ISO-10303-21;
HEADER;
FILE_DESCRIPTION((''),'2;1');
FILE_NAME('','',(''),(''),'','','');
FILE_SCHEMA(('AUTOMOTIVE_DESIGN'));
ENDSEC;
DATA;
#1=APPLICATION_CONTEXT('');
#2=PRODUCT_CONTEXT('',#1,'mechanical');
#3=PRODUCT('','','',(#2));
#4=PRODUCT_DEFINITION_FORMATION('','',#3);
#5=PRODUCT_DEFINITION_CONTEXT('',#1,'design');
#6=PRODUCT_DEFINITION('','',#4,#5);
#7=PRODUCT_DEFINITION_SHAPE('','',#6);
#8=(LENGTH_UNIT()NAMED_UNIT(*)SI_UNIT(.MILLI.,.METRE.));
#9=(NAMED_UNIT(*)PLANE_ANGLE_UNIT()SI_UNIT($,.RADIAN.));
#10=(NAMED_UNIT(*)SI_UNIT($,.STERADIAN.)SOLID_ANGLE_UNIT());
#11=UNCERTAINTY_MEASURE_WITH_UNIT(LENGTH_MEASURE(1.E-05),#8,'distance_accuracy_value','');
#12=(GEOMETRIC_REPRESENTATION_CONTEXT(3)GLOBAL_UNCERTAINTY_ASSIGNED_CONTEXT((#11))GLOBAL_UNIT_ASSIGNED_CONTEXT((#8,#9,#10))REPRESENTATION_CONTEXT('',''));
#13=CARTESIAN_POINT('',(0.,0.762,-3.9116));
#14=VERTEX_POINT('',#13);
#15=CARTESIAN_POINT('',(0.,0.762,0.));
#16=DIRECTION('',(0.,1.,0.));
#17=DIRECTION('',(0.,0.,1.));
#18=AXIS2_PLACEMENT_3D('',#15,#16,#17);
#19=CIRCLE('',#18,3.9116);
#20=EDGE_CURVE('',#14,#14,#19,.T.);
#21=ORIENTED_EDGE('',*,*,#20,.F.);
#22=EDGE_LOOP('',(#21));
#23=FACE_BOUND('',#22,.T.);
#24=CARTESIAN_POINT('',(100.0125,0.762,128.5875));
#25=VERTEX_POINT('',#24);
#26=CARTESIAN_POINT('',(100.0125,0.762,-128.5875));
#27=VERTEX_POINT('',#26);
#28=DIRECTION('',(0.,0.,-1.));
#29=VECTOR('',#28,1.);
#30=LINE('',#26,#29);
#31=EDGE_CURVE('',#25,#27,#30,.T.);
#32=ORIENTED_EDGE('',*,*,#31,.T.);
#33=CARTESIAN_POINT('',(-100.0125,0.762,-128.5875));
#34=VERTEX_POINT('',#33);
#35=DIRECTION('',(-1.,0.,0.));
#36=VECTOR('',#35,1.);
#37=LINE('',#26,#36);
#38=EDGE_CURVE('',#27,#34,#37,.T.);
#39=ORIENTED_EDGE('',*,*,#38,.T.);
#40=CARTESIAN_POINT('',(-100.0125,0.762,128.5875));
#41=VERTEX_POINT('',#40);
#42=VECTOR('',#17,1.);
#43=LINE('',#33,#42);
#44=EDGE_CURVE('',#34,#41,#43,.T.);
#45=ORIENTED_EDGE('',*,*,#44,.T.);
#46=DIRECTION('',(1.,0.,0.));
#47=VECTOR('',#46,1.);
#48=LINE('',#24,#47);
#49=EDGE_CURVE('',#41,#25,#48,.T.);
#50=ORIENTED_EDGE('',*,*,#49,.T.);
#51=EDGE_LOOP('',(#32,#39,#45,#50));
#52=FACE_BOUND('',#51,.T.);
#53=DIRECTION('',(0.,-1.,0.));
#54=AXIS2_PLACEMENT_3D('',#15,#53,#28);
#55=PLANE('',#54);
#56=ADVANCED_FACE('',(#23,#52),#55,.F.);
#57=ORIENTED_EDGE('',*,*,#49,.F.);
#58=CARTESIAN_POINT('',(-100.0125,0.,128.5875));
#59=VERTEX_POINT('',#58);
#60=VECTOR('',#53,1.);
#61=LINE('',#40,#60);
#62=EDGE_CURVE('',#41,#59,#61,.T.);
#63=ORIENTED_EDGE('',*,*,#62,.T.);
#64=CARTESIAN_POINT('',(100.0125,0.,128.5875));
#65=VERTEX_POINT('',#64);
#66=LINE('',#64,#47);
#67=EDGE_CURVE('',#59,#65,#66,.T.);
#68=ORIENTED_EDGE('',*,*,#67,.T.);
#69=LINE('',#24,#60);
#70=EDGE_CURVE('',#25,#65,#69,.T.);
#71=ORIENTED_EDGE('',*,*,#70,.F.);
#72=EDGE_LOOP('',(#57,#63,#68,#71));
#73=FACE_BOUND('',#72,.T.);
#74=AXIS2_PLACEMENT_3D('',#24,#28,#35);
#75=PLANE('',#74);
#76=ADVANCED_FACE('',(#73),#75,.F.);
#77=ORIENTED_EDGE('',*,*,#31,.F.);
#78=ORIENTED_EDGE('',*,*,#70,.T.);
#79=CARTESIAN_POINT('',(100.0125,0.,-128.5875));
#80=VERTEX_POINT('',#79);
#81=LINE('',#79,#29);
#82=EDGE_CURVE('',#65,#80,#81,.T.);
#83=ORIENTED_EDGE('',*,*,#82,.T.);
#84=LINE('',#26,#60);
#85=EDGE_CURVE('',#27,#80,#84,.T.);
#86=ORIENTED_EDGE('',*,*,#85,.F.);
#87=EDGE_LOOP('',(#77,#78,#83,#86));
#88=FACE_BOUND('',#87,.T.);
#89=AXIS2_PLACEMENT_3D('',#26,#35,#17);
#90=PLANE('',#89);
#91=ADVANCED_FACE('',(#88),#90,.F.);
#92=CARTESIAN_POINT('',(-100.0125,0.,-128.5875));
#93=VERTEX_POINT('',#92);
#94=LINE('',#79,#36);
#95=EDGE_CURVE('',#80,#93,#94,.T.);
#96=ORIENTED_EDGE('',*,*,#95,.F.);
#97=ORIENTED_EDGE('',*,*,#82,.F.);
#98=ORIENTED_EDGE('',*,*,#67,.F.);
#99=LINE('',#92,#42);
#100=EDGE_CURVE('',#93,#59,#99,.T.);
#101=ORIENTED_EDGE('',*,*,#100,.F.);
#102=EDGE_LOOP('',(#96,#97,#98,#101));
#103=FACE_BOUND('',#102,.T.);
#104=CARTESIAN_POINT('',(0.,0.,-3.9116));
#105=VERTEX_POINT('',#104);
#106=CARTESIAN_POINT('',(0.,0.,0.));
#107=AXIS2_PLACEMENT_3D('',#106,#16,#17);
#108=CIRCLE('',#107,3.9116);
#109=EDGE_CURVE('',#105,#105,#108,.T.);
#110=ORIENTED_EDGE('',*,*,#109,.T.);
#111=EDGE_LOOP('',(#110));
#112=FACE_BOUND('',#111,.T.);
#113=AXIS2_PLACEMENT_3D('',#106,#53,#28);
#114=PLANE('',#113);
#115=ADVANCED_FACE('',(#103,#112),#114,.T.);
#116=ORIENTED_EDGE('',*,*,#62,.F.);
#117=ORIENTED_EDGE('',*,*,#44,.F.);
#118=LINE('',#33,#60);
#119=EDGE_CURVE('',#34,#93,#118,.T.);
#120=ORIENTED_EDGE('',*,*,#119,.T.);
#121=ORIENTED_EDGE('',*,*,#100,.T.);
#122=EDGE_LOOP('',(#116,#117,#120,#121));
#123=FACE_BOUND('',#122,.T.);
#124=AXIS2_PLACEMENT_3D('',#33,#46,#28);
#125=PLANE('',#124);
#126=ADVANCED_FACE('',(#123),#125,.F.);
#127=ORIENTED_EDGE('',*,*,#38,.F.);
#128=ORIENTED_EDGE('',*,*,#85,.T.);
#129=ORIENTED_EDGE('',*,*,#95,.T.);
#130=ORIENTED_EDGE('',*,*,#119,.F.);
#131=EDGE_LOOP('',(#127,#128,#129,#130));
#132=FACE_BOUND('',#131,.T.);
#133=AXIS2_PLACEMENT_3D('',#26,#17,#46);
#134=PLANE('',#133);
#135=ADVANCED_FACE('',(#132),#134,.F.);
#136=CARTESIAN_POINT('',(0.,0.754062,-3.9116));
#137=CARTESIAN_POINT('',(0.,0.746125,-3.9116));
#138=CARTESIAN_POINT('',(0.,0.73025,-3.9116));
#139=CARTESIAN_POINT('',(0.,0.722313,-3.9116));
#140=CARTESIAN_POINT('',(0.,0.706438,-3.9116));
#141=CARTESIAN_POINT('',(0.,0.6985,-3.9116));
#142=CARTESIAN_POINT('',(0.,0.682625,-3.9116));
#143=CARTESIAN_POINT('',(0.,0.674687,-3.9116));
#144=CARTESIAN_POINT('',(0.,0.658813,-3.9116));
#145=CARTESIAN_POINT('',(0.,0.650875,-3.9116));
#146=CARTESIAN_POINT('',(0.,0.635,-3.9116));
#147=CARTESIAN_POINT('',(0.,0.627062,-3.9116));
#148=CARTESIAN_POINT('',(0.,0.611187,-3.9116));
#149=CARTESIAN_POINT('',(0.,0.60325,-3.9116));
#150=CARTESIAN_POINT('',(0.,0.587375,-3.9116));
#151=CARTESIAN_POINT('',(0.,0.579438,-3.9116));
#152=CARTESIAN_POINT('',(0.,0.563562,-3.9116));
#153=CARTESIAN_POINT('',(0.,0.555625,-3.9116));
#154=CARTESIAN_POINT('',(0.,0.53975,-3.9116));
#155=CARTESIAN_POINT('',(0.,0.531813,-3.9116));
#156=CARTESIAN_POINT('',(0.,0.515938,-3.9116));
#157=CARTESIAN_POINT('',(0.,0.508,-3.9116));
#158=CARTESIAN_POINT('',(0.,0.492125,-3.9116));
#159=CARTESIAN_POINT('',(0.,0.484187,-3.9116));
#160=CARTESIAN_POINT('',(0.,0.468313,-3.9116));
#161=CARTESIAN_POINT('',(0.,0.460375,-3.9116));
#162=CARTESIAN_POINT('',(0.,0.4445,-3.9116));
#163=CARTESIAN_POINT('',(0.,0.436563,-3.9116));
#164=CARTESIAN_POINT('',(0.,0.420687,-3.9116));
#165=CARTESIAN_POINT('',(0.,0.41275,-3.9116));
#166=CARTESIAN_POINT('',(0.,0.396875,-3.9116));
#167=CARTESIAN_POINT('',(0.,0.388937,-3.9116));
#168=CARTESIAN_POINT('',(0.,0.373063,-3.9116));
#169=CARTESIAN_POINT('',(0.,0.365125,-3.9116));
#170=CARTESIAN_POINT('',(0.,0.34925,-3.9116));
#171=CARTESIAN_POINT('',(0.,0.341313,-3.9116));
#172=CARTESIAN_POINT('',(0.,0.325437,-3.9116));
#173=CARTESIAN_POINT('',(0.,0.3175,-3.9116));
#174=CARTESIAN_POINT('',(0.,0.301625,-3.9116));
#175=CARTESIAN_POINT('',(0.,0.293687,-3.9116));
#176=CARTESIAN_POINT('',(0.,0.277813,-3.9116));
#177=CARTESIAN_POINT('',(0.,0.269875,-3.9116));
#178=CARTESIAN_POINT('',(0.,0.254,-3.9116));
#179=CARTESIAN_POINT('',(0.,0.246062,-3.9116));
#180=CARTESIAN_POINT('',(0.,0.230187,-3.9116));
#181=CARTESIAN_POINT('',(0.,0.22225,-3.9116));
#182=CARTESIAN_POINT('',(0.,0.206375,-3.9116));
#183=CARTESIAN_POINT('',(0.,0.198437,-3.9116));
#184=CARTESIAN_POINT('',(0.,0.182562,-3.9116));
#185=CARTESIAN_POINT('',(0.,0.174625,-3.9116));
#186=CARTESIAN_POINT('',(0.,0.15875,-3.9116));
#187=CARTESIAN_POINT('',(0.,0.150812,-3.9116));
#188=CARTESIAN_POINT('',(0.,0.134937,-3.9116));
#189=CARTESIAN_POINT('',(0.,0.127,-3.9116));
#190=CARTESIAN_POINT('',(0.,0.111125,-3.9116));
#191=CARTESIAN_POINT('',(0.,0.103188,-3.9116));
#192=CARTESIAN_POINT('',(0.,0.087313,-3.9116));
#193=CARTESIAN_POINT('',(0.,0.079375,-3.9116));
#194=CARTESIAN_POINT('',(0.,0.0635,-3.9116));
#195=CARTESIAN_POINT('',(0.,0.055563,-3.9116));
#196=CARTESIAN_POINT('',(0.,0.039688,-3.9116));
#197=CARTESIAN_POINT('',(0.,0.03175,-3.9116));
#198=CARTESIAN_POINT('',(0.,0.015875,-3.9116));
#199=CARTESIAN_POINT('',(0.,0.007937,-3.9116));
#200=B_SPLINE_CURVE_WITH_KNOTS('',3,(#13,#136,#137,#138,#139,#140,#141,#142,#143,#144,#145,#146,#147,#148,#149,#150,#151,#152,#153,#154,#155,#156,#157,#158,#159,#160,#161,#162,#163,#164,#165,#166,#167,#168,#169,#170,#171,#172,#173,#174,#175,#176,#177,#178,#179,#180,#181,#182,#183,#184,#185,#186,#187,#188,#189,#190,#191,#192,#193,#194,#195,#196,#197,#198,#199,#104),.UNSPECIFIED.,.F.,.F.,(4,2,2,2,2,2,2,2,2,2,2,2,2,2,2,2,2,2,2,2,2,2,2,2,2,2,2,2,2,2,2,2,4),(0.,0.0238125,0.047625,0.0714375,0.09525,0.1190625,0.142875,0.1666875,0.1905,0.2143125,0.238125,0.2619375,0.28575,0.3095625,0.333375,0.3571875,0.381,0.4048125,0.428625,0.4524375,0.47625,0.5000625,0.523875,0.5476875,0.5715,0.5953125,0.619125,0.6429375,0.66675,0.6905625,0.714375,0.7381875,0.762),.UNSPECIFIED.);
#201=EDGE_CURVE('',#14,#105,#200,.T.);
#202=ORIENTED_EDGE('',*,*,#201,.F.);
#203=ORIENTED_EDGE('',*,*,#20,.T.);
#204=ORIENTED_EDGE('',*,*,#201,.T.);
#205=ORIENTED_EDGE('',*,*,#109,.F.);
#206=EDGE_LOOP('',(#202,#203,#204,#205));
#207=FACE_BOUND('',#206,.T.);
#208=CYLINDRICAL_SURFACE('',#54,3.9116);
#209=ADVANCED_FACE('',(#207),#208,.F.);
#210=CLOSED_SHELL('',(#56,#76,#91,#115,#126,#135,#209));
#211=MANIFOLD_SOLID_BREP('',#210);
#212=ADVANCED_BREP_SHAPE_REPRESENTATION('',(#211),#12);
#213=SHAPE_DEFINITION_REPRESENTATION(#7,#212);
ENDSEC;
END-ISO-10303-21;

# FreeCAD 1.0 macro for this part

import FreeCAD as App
import Part
import Sketcher

V = App.Vector
Q = App.Units.Quantity


def add_polygon(sketch, points):
    """Adds a closed chain of lines whose ends are joined by coincident constraints."""
    first, n = sketch.GeometryCount, len(points)
    for a, b in zip(points, points[1:] + points[:1]):
        sketch.addGeometry(Part.LineSegment(App.Vector(*a, 0), App.Vector(*b, 0)), False)
    for i in range(n):
        sketch.addConstraint(Sketcher.Constraint("Coincident", first + i, 2, first + (i + 1) % n, 1))

doc = App.newDocument("Part")
body = doc.addObject("PartDesign::Body", "Body")

# Sketch on XZ plane
sketch1 = body.newObject("Sketcher::SketchObject", "Sketch")
sketch1.AttachmentSupport = (doc.getObject("XZ_Plane"), [""])
sketch1.MapMode = "FlatFace"
add_polygon(sketch1, [(-100, -128.6), (-100, 128.6), (100, 128.6), (100, -128.6)])  # lines 0-3
sketch1.addGeometry(Part.Circle(V(0, 0, 0), V(0, 0, 1), 3.9), False)  # 4
sketch1.addConstraint(Sketcher.Constraint("Vertical", 0))
sketch1.addConstraint(Sketcher.Constraint("Horizontal", 1))
sketch1.addConstraint(Sketcher.Constraint("Vertical", 2))
sketch1.addConstraint(Sketcher.Constraint("Horizontal", 3))
sketch1.addConstraint(Sketcher.Constraint("Coincident", 4, 3, -1, 1))
sketch1.addConstraint(Sketcher.Constraint("Symmetric", 0, 2, 2, 2, -1, 1))
sketch1.addConstraint(Sketcher.Constraint("Diameter", 4, Q("0.308 in")))
sketch1.addConstraint(Sketcher.Constraint("DistanceX", 1, 1, 1, 2, Q("7.875 in")))
sketch1.addConstraint(Sketcher.Constraint("DistanceY", 0, 1, 0, 2, Q("10.125 in")))
pad1 = body.newObject("PartDesign::Pad", "Pad")
pad1.Profile = sketch1
pad1.Length = Q("0.03 in")
pad1.Reversed = True

doc.recompute()
